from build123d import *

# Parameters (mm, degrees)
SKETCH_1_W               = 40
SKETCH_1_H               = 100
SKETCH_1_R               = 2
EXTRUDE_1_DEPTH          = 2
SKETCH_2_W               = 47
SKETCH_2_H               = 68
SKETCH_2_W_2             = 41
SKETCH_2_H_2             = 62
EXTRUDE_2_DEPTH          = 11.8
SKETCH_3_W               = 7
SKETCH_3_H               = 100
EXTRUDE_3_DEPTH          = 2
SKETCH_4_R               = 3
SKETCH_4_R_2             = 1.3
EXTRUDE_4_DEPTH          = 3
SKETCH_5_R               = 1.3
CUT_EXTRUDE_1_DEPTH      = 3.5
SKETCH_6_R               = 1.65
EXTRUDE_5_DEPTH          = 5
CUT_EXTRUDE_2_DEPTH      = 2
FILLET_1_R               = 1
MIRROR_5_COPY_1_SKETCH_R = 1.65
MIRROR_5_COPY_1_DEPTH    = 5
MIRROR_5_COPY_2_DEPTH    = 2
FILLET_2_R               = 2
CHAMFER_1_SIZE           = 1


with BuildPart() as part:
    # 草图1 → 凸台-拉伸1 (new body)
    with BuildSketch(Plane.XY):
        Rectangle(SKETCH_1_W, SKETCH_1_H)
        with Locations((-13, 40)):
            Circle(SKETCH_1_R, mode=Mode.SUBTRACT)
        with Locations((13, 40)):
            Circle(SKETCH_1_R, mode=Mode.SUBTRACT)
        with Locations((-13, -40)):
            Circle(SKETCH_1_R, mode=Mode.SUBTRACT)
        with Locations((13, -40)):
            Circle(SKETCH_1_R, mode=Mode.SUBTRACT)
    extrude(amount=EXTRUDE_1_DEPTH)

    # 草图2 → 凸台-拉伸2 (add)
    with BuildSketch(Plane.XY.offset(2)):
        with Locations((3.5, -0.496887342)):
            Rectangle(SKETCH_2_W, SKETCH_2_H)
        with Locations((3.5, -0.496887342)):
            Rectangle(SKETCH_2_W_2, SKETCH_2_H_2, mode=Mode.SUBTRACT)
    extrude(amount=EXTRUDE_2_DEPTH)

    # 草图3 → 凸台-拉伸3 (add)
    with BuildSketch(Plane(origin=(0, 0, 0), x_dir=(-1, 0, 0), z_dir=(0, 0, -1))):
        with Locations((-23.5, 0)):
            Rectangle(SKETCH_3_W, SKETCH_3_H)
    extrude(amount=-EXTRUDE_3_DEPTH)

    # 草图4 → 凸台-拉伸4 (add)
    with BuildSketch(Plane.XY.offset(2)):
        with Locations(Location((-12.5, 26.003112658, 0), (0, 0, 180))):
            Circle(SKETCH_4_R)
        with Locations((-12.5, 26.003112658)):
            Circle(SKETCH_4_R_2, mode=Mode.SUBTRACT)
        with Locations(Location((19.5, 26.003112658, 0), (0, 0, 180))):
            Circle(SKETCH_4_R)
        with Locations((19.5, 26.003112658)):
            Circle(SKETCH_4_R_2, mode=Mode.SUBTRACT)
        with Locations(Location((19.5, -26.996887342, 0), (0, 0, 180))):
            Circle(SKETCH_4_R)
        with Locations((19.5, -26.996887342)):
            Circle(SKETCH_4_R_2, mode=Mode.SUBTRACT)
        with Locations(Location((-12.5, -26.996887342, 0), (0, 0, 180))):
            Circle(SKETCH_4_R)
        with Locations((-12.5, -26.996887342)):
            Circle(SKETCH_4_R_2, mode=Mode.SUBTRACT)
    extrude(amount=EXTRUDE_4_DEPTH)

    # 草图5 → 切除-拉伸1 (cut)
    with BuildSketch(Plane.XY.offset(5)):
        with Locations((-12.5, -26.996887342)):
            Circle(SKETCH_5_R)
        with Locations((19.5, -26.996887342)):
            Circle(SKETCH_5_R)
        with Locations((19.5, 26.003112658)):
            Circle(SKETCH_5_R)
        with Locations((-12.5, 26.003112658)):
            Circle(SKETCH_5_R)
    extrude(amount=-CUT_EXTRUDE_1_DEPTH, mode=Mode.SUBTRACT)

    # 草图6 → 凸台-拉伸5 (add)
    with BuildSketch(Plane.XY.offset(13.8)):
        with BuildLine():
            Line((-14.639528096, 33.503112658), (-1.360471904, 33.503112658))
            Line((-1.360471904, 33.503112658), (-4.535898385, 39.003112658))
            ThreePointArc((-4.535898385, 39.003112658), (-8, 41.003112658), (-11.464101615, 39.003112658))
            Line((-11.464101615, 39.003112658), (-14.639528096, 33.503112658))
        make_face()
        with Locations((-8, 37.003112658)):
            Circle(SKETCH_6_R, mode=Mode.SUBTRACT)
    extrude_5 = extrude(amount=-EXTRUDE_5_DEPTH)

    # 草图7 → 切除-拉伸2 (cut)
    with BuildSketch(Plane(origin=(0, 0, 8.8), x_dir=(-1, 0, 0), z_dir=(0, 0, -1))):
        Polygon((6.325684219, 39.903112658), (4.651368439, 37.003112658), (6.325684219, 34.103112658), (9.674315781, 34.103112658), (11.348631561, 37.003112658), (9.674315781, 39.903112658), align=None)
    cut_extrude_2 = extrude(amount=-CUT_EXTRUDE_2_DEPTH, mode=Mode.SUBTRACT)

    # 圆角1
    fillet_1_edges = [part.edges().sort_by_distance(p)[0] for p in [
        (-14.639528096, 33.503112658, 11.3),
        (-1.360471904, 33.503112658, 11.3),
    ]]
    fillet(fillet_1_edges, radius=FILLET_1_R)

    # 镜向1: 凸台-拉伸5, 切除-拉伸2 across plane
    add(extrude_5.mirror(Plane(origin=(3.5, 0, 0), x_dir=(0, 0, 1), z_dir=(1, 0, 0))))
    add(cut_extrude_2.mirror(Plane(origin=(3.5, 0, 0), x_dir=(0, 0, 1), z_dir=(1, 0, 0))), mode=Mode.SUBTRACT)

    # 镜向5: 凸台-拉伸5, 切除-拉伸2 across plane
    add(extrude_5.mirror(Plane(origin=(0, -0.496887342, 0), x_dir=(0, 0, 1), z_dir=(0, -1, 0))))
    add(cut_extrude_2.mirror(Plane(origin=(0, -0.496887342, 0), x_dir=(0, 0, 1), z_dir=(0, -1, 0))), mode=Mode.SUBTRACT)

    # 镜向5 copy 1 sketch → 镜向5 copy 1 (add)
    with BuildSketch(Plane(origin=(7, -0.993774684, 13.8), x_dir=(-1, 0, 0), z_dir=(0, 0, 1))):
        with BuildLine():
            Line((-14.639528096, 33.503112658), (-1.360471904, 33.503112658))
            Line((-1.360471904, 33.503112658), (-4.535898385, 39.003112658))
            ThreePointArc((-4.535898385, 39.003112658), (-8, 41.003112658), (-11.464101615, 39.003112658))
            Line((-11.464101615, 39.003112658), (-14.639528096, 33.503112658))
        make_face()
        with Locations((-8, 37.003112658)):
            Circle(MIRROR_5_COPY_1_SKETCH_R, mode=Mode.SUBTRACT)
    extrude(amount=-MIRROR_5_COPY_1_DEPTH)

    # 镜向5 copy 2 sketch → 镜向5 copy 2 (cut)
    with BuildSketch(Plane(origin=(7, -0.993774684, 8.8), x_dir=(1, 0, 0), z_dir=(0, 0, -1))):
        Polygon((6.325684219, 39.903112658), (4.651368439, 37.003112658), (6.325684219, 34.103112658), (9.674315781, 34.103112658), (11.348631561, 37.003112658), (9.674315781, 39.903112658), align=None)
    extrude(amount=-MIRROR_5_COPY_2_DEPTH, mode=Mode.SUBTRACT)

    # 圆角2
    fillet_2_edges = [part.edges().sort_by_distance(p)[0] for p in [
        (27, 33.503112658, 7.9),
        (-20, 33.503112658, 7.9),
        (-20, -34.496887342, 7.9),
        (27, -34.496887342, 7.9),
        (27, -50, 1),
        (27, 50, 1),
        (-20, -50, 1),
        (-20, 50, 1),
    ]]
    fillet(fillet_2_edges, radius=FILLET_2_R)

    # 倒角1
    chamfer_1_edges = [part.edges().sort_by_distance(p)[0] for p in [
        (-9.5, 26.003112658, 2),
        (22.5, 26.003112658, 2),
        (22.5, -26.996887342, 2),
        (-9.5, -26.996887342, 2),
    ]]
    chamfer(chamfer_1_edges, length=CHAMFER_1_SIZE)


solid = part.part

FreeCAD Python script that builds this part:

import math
import FreeCAD as App
import Part
import Sketcher
Q = App.Units.Quantity


def edges_at(feature, points):
    """Names of the edges that pass closest to the given points."""
    edges = feature.Shape.Edges
    near = lambda p: min(range(len(edges)), key=lambda i: edges[i].distToShape(Part.Vertex(*p))[0])
    return sorted({f"Edge{near(p) + 1}" for p in points})


def add_polygon(sketch, points):
    """Adds a closed chain of lines whose ends are joined by coincident constraints."""
    first, n = sketch.GeometryCount, len(points)
    for a, b in zip(points, points[1:] + points[:1]):
        sketch.addGeometry(Part.LineSegment(App.Vector(*a, 0), App.Vector(*b, 0)), False)
    for i in range(n):
        sketch.addConstraint(Sketcher.Constraint("Coincident", first + i, 2, first + (i + 1) % n, 1))

doc = App.newDocument("Part")
body = doc.addObject("PartDesign::Body", "Body")

# Sketch on XY plane
sketch1 = body.newObject("Sketcher::SketchObject", "Sketch")
sketch1.AttachmentSupport = (doc.getObject("XY_Plane"), [""])
sketch1.MapMode = "FlatFace"
add_polygon(sketch1, [(-20, 50), (-20, -50), (20, -50), (20, 50)])  # lines 0-3
sketch1.addGeometry(Part.Circle(App.Vector(-13, -40, 0), App.Vector(0, 0, 1), 2), False)  # 4
sketch1.addGeometry(Part.Circle(App.Vector(13, -40, 0), App.Vector(0, 0, 1), 2), False)  # 5
sketch1.addGeometry(Part.Circle(App.Vector(-13, 40, 0), App.Vector(0, 0, 1), 2), False)  # 6
sketch1.addGeometry(Part.Circle(App.Vector(13, 40, 0), App.Vector(0, 0, 1), 2), False)  # 7
sketch1.addConstraint(Sketcher.Constraint("Vertical", 0))
sketch1.addConstraint(Sketcher.Constraint("Horizontal", 1))
sketch1.addConstraint(Sketcher.Constraint("Vertical", 2))
sketch1.addConstraint(Sketcher.Constraint("Horizontal", 3))
sketch1.addConstraint(Sketcher.Constraint("Equal", 4, 5))
sketch1.addConstraint(Sketcher.Constraint("Equal", 5, 6))
sketch1.addConstraint(Sketcher.Constraint("Equal", 6, 7))
sketch1.addConstraint(Sketcher.Constraint("Symmetric", 5, 3, 6, 3, -1, 1))
sketch1.addConstraint(Sketcher.Constraint("Symmetric", 4, 3, 7, 3, -1, 1))
sketch1.addConstraint(Sketcher.Constraint("Symmetric", 0, 2, 2, 2, -1, 1))
sketch1.addConstraint(Sketcher.Constraint("Symmetric", 4, 3, 5, 3, -2))
sketch1.addConstraint(Sketcher.Constraint("Diameter", 4, Q("4 mm")))
sketch1.addConstraint(Sketcher.Constraint("DistanceX", 1, 1, 1, 2, Q("40 mm")))
sketch1.addConstraint(Sketcher.Constraint("DistanceY", 0, 2, 0, 1, Q("100 mm")))
sketch1.addConstraint(Sketcher.Constraint("DistanceX", 4, 3, -1, 1, Q("13 mm")))
sketch1.addConstraint(Sketcher.Constraint("DistanceY", 4, 3, -1, 1, Q("40 mm")))
pad1 = body.newObject("PartDesign::Pad", "Pad")
pad1.Profile = sketch1
pad1.Length = 2

# Sketch on XY plane
sketch2 = body.newObject("Sketcher::SketchObject", "Sketch001")
sketch2.AttachmentSupport = (doc.getObject("XY_Plane"), [""])
sketch2.MapMode = "FlatFace"
sketch2.AttachmentOffset = App.Placement(App.Vector(0, 0, 2), App.Rotation())
add_polygon(sketch2, [(-20, 33.503113), (-20, -34.496887), (27, -34.496887), (27, 33.503113)])  # lines 0-3
add_polygon(sketch2, [(24, -31.496887), (-17, -31.496887), (-17, 30.503113), (24, 30.503113)])  # lines 4-7
sketch2.addConstraint(Sketcher.Constraint("Vertical", 0))
sketch2.addConstraint(Sketcher.Constraint("Horizontal", 1))
sketch2.addConstraint(Sketcher.Constraint("Vertical", 2))
sketch2.addConstraint(Sketcher.Constraint("Horizontal", 3))
sketch2.addConstraint(Sketcher.Constraint("Horizontal", 4))
sketch2.addConstraint(Sketcher.Constraint("Vertical", 5))
sketch2.addConstraint(Sketcher.Constraint("Horizontal", 6))
sketch2.addConstraint(Sketcher.Constraint("Vertical", 7))
sketch2.addConstraint(Sketcher.Constraint("DistanceX", 1, 1, 1, 2, Q("47 mm")))
sketch2.addConstraint(Sketcher.Constraint("DistanceX", 4, 2, 4, 1, Q("41 mm")))
sketch2.addConstraint(Sketcher.Constraint("DistanceY", 0, 2, 0, 1, Q("68 mm")))
sketch2.addConstraint(Sketcher.Constraint("DistanceY", 5, 1, 5, 2, Q("62 mm")))
sketch2.addConstraint(Sketcher.Constraint("DistanceX", 0, 2, -1, 1, Q("20 mm")))
sketch2.addConstraint(Sketcher.Constraint("DistanceX", 4, 2, -1, 1, Q("17 mm")))
sketch2.addConstraint(Sketcher.Constraint("DistanceY", 0, 2, 4, 2, Q("3 mm")))
sketch2.addConstraint(Sketcher.Constraint("DistanceY", 0, 2, -1, 1, Q("34.496887 mm")))
pad2 = body.newObject("PartDesign::Pad", "Pad001")
pad2.Profile = sketch2
pad2.Length = 11.8

# Sketch on XY plane
sketch3 = body.newObject("Sketcher::SketchObject", "Sketch002")
sketch3.AttachmentSupport = (doc.getObject("XY_Plane"), [""])
sketch3.MapMode = "FlatFace"
add_polygon(sketch3, [(27, 50), (27, -50), (20, -50), (20, 50)])  # lines 0-3
sketch3.addConstraint(Sketcher.Constraint("Vertical", 0))
sketch3.addConstraint(Sketcher.Constraint("Horizontal", 1))
sketch3.addConstraint(Sketcher.Constraint("Vertical", 2))
sketch3.addConstraint(Sketcher.Constraint("Horizontal", 3))
sketch3.addConstraint(Sketcher.Constraint("DistanceX", 1, 2, 1, 1, Q("7 mm")))
sketch3.addConstraint(Sketcher.Constraint("DistanceY", 0, 2, 0, 1, Q("100 mm")))
sketch3.addConstraint(Sketcher.Constraint("DistanceX", -1, 1, 0, 2, Q("27 mm")))
sketch3.addConstraint(Sketcher.Constraint("DistanceY", 0, 2, -1, 1, Q("50 mm")))
pad3 = body.newObject("PartDesign::Pad", "Pad002")
pad3.Profile = sketch3
pad3.Length = 2

# Sketch on XY plane
sketch4 = body.newObject("Sketcher::SketchObject", "Sketch003")
sketch4.AttachmentSupport = (doc.getObject("XY_Plane"), [""])
sketch4.MapMode = "FlatFace"
sketch4.AttachmentOffset = App.Placement(App.Vector(0, 0, 2), App.Rotation())
sketch4.addGeometry(Part.Circle(App.Vector(-12.5, 26.003113, 0), App.Vector(0, 0, 1), 3), False)
sketch4.addGeometry(Part.Circle(App.Vector(-12.5, 26.003113, 0), App.Vector(0, 0, 1), 1.3), False)
sketch4.addGeometry(Part.Circle(App.Vector(19.5, 26.003113, 0), App.Vector(0, 0, 1), 3), False)
sketch4.addGeometry(Part.Circle(App.Vector(19.5, 26.003113, 0), App.Vector(0, 0, 1), 1.3), False)
sketch4.addGeometry(Part.Circle(App.Vector(19.5, -26.996887, 0), App.Vector(0, 0, 1), 3), False)
sketch4.addGeometry(Part.Circle(App.Vector(19.5, -26.996887, 0), App.Vector(0, 0, 1), 1.3), False)
sketch4.addGeometry(Part.Circle(App.Vector(-12.5, -26.996887, 0), App.Vector(0, 0, 1), 3), False)
sketch4.addGeometry(Part.Circle(App.Vector(-12.5, -26.996887, 0), App.Vector(0, 0, 1), 1.3), False)
sketch4.addConstraint(Sketcher.Constraint("Coincident", 1, 3, 0, 3))
sketch4.addConstraint(Sketcher.Constraint("Coincident", 3, 3, 2, 3))
sketch4.addConstraint(Sketcher.Constraint("Coincident", 5, 3, 4, 3))
sketch4.addConstraint(Sketcher.Constraint("Coincident", 7, 3, 6, 3))
sketch4.addConstraint(Sketcher.Constraint("Equal", 0, 2))
sketch4.addConstraint(Sketcher.Constraint("Equal", 1, 3))
sketch4.addConstraint(Sketcher.Constraint("Equal", 2, 4))
sketch4.addConstraint(Sketcher.Constraint("Equal", 3, 5))
sketch4.addConstraint(Sketcher.Constraint("Equal", 4, 6))
sketch4.addConstraint(Sketcher.Constraint("Equal", 5, 7))
sketch4.addConstraint(Sketcher.Constraint("Horizontal", 1, 3, 2, 3))
sketch4.addConstraint(Sketcher.Constraint("Horizontal", 5, 3, 6, 3))
sketch4.addConstraint(Sketcher.Constraint("Vertical", 3, 3, 4, 3))
sketch4.addConstraint(Sketcher.Constraint("Vertical", 1, 3, 6, 3))
sketch4.addConstraint(Sketcher.Constraint("Diameter", 0, Q("6 mm")))
sketch4.addConstraint(Sketcher.Constraint("Diameter", 1, Q("2.6 mm")))
sketch4.addConstraint(Sketcher.Constraint("DistanceX", 0, 3, 2, 3, Q("32 mm")))
sketch4.addConstraint(Sketcher.Constraint("DistanceY", 4, 3, 2, 3, Q("53 mm")))
sketch4.addConstraint(Sketcher.Constraint("DistanceX", 0, 3, -1, 1, Q("12.5 mm")))
sketch4.addConstraint(Sketcher.Constraint("DistanceY", -1, 1, 0, 3, Q("26.003113 mm")))
pad4 = body.newObject("PartDesign::Pad", "Pad003")
pad4.Profile = sketch4
pad4.Length = 3

# Sketch on XY plane
sketch5 = body.newObject("Sketcher::SketchObject", "Sketch004")
sketch5.AttachmentSupport = (doc.getObject("XY_Plane"), [""])
sketch5.MapMode = "FlatFace"
sketch5.AttachmentOffset = App.Placement(App.Vector(0, 0, 5), App.Rotation())
sketch5.addGeometry(Part.Circle(App.Vector(-12.5, -26.996887, 0), App.Vector(0, 0, 1), 1.3), False)
sketch5.addGeometry(Part.Circle(App.Vector(19.5, -26.996887, 0), App.Vector(0, 0, 1), 1.3), False)
sketch5.addGeometry(Part.Circle(App.Vector(19.5, 26.003113, 0), App.Vector(0, 0, 1), 1.3), False)
sketch5.addGeometry(Part.Circle(App.Vector(-12.5, 26.003113, 0), App.Vector(0, 0, 1), 1.3), False)
sketch5.addConstraint(Sketcher.Constraint("Equal", 0, 1))
sketch5.addConstraint(Sketcher.Constraint("Equal", 1, 2))
sketch5.addConstraint(Sketcher.Constraint("Equal", 2, 3))
sketch5.addConstraint(Sketcher.Constraint("Horizontal", 0, 3, 1, 3))
sketch5.addConstraint(Sketcher.Constraint("Horizontal", 2, 3, 3, 3))
sketch5.addConstraint(Sketcher.Constraint("Vertical", 1, 3, 2, 3))
sketch5.addConstraint(Sketcher.Constraint("Vertical", 0, 3, 3, 3))
sketch5.addConstraint(Sketcher.Constraint("Diameter", 0, Q("2.6 mm")))
sketch5.addConstraint(Sketcher.Constraint("DistanceX", 0, 3, 1, 3, Q("32 mm")))
sketch5.addConstraint(Sketcher.Constraint("DistanceY", 1, 3, 2, 3, Q("53 mm")))
sketch5.addConstraint(Sketcher.Constraint("DistanceX", 0, 3, -1, 1, Q("12.5 mm")))
sketch5.addConstraint(Sketcher.Constraint("DistanceY", 0, 3, -1, 1, Q("26.996887 mm")))
pocket1 = body.newObject("PartDesign::Pocket", "Pocket")
pocket1.Profile = sketch5
pocket1.Length = 3.5

# Sketch on XY plane
sketch6 = body.newObject("Sketcher::SketchObject", "Sketch005")
sketch6.AttachmentSupport = (doc.getObject("XY_Plane"), [""])
sketch6.MapMode = "FlatFace"
sketch6.AttachmentOffset = App.Placement(App.Vector(0, 0, 13.8), App.Rotation())
sketch6.addGeometry(Part.LineSegment(App.Vector(-14.639528, 33.503113, 0), App.Vector(-1.360472, 33.503113, 0)), False)
sketch6.addGeometry(Part.LineSegment(App.Vector(-1.360472, 33.503113, 0), App.Vector(-4.535898, 39.003113, 0)), False)
sketch6.addGeometry(Part.ArcOfCircle(Part.Circle(App.Vector(-8, 37.003113, 0), App.Vector(0, 0, 1), 4), math.radians(30), math.radians(150)), False)
sketch6.addGeometry(Part.LineSegment(App.Vector(-11.464102, 39.003113, 0), App.Vector(-14.639528, 33.503113, 0)), False)
sketch6.addGeometry(Part.Circle(App.Vector(-8, 37.003113, 0), App.Vector(0, 0, 1), 1.65), False)
sketch6.addConstraint(Sketcher.Constraint("Coincident", 0, 2, 1, 1))
sketch6.addConstraint(Sketcher.Constraint("Tangent", 1, 2, 2, 1))
sketch6.addConstraint(Sketcher.Constraint("Tangent", 2, 2, 3, 1))
sketch6.addConstraint(Sketcher.Constraint("Coincident", 3, 2, 0, 1))
sketch6.addConstraint(Sketcher.Constraint("Horizontal", 0))
sketch6.addConstraint(Sketcher.Constraint("Coincident", 4, 3, 2, 3))
sketch6.addConstraint(Sketcher.Constraint("Horizontal", 1, 2, 2, 2))
sketch6.addConstraint(Sketcher.Constraint("Radius", 2, Q("4 mm")))
sketch6.addConstraint(Sketcher.Constraint("Diameter", 4, Q("3.3 mm")))
sketch6.addConstraint(Sketcher.Constraint("Angle", 1, Q("120 deg")))
sketch6.addConstraint(Sketcher.Constraint("DistanceX", 2, 3, -1, 1, Q("8 mm")))
sketch6.addConstraint(Sketcher.Constraint("DistanceY", 0, 2, 2, 3, Q("3.5 mm")))
sketch6.addConstraint(Sketcher.Constraint("DistanceY", -1, 1, 2, 3, Q("37.003113 mm")))
pad5 = body.newObject("PartDesign::Pad", "Pad004")
pad5.Profile = sketch6
pad5.Length = 5
pad5.Reversed = True

# Sketch on XY plane
sketch7 = body.newObject("Sketcher::SketchObject", "Sketch006")
sketch7.AttachmentSupport = (doc.getObject("XY_Plane"), [""])
sketch7.MapMode = "FlatFace"
sketch7.AttachmentOffset = App.Placement(App.Vector(0, 0, 8.8), App.Rotation())
add_polygon(sketch7, [(-6.325684, 39.903113), (-4.651368, 37.003113), (-6.325684, 34.103113), (-9.674316, 34.103113), (-11.348632, 37.003113), (-9.674316, 39.903113)])  # lines 0-5
sketch7.addConstraint(Sketcher.Constraint("Horizontal", 2))
sketch7.addConstraint(Sketcher.Constraint("Horizontal", 5))
sketch7.addConstraint(Sketcher.Constraint("Parallel", 0, 3))
sketch7.addConstraint(Sketcher.Constraint("Parallel", 1, 4))
sketch7.addConstraint(Sketcher.Constraint("Horizontal", 0, 2, 3, 2))
sketch7.addConstraint(Sketcher.Constraint("Vertical", 2, 2, 4, 2))
sketch7.addConstraint(Sketcher.Constraint("Vertical", 1, 2, 5, 2))
sketch7.addConstraint(Sketcher.Constraint("Angle", 0, Q("-60 deg")))
sketch7.addConstraint(Sketcher.Constraint("DistanceY", 1, 2, 0, 2, Q("2.9 mm")))
sketch7.addConstraint(Sketcher.Constraint("DistanceX", 2, 2, 2, 1, Q("3.348632 mm")))
sketch7.addConstraint(Sketcher.Constraint("DistanceX", 0, 2, -1, 1, Q("4.651368 mm")))
sketch7.addConstraint(Sketcher.Constraint("DistanceY", -1, 1, 0, 2, Q("37.003113 mm")))
pocket2 = body.newObject("PartDesign::Pocket", "Pocket001")
pocket2.Profile = sketch7
pocket2.Length = 2
pocket2.Reversed = True
doc.recompute()

fillet = body.newObject("PartDesign::Fillet", "Fillet")
fillet.Base = (pocket2, edges_at(pocket2, [(-14.64, 33.503, 11.3), (-1.36, 33.503, 11.3)]))
fillet.Radius = 1
doc.recompute()

datumplane = body.newObject("PartDesign::Plane", "DatumPlane")
datumplane.AttachmentSupport = (doc.getObject("YZ_Plane"), [""])
datumplane.MapMode = "FlatFace"
datumplane.AttachmentOffset = App.Placement(App.Vector(0, 0, 3.5), App.Rotation())
mirrored = body.newObject("PartDesign::Mirrored", "Mirrored")
mirrored.Originals = [pad5, pocket2]
mirrored.MirrorPlane = (datumplane, [""])
body.Tip = mirrored
doc.recompute()

datumplane2 = body.newObject("PartDesign::Plane", "DatumPlane001")
datumplane2.AttachmentSupport = (doc.getObject("XZ_Plane"), [""])
datumplane2.MapMode = "FlatFace"
datumplane2.AttachmentOffset = App.Placement(App.Vector(0, 0, 0.496887), App.Rotation())
mirrored2 = body.newObject("PartDesign::Mirrored", "Mirrored001")
mirrored2.Originals = [pad5, pocket2]
mirrored2.MirrorPlane = (datumplane2, [""])
body.Tip = mirrored2

# Sketch on XY plane
sketch8 = body.newObject("Sketcher::SketchObject", "Sketch007")
sketch8.AttachmentSupport = (doc.getObject("XY_Plane"), [""])
sketch8.MapMode = "FlatFace"
sketch8.AttachmentOffset = App.Placement(App.Vector(0, 0, 13.8), App.Rotation())
sketch8.addGeometry(Part.LineSegment(App.Vector(21.639528, -34.496887, 0), App.Vector(8.360472, -34.496887, 0)), False)
sketch8.addGeometry(Part.LineSegment(App.Vector(8.360472, -34.496887, 0), App.Vector(11.535898, -39.996887, 0)), False)
sketch8.addGeometry(Part.ArcOfCircle(Part.Circle(App.Vector(15, -37.996887, 0), App.Vector(0, 0, 1), 4), math.radians(-150), math.radians(-30)), False)
sketch8.addGeometry(Part.LineSegment(App.Vector(18.464102, -39.996887, 0), App.Vector(21.639528, -34.496887, 0)), False)
sketch8.addGeometry(Part.Circle(App.Vector(15, -37.996887, 0), App.Vector(0, 0, 1), 1.65), False)
sketch8.addConstraint(Sketcher.Constraint("Coincident", 0, 2, 1, 1))
sketch8.addConstraint(Sketcher.Constraint("Tangent", 1, 2, 2, 1))
sketch8.addConstraint(Sketcher.Constraint("Tangent", 2, 2, 3, 1))
sketch8.addConstraint(Sketcher.Constraint("Coincident", 3, 2, 0, 1))
sketch8.addConstraint(Sketcher.Constraint("Horizontal", 0))
sketch8.addConstraint(Sketcher.Constraint("Coincident", 4, 3, 2, 3))
sketch8.addConstraint(Sketcher.Constraint("Horizontal", 1, 2, 2, 2))
sketch8.addConstraint(Sketcher.Constraint("Radius", 2, Q("4 mm")))
sketch8.addConstraint(Sketcher.Constraint("Diameter", 4, Q("3.3 mm")))
sketch8.addConstraint(Sketcher.Constraint("Angle", 1, Q("-60 deg")))
sketch8.addConstraint(Sketcher.Constraint("DistanceX", -1, 1, 2, 3, Q("15 mm")))
sketch8.addConstraint(Sketcher.Constraint("DistanceY", 2, 3, 0, 2, Q("3.5 mm")))
sketch8.addConstraint(Sketcher.Constraint("DistanceY", 2, 3, -1, 1, Q("37.996887 mm")))
pad6 = body.newObject("PartDesign::Pad", "Pad005")
pad6.Profile = sketch8
pad6.Length = 5
pad6.Reversed = True

# Sketch on XY plane
sketch9 = body.newObject("Sketcher::SketchObject", "Sketch008")
sketch9.AttachmentSupport = (doc.getObject("XY_Plane"), [""])
sketch9.MapMode = "FlatFace"
sketch9.AttachmentOffset = App.Placement(App.Vector(0, 0, 8.8), App.Rotation())
add_polygon(sketch9, [(13.325684, -40.896887), (11.651368, -37.996887), (13.325684, -35.096887), (16.674316, -35.096887), (18.348632, -37.996887), (16.674316, -40.896887)])  # lines 0-5
sketch9.addConstraint(Sketcher.Constraint("Horizontal", 2))
sketch9.addConstraint(Sketcher.Constraint("Horizontal", 5))
sketch9.addConstraint(Sketcher.Constraint("Parallel", 0, 3))
sketch9.addConstraint(Sketcher.Constraint("Parallel", 1, 4))
sketch9.addConstraint(Sketcher.Constraint("Horizontal", 0, 2, 3, 2))
sketch9.addConstraint(Sketcher.Constraint("Vertical", 2, 2, 4, 2))
sketch9.addConstraint(Sketcher.Constraint("Vertical", 1, 2, 5, 2))
sketch9.addConstraint(Sketcher.Constraint("Angle", 0, Q("120 deg")))
sketch9.addConstraint(Sketcher.Constraint("DistanceY", 0, 2, 1, 2, Q("2.9 mm")))
sketch9.addConstraint(Sketcher.Constraint("DistanceX", 2, 1, 2, 2, Q("3.348632 mm")))
sketch9.addConstraint(Sketcher.Constraint("DistanceX", -1, 1, 0, 2, Q("11.651368 mm")))
sketch9.addConstraint(Sketcher.Constraint("DistanceY", 0, 2, -1, 1, Q("37.996887 mm")))
pocket3 = body.newObject("PartDesign::Pocket", "Pocket002")
pocket3.Profile = sketch9
pocket3.Length = 2
pocket3.Reversed = True
doc.recompute()

fillet2 = body.newObject("PartDesign::Fillet", "Fillet001")
fillet2.Base = (pocket3, edges_at(pocket3, [
    (27, 33.503, 7.9),
    (-20, 33.503, 7.9),
    (-20, -34.497, 7.9),
    (27, -34.497, 7.9),
    (27, -50, 1),
    (27, 50, 1),
    (-20, -50, 1),
    (-20, 50, 1),
]))
fillet2.Radius = 2
doc.recompute()

chamfer = body.newObject("PartDesign::Chamfer", "Chamfer")
chamfer.Base = (fillet2, edges_at(fillet2, [
    (-9.5, 26.003, 2),
    (22.5, 26.003, 2),
    (22.5, -26.997, 2),
    (-9.5, -26.997, 2),
]))
chamfer.Size = 1

doc.recompute()
